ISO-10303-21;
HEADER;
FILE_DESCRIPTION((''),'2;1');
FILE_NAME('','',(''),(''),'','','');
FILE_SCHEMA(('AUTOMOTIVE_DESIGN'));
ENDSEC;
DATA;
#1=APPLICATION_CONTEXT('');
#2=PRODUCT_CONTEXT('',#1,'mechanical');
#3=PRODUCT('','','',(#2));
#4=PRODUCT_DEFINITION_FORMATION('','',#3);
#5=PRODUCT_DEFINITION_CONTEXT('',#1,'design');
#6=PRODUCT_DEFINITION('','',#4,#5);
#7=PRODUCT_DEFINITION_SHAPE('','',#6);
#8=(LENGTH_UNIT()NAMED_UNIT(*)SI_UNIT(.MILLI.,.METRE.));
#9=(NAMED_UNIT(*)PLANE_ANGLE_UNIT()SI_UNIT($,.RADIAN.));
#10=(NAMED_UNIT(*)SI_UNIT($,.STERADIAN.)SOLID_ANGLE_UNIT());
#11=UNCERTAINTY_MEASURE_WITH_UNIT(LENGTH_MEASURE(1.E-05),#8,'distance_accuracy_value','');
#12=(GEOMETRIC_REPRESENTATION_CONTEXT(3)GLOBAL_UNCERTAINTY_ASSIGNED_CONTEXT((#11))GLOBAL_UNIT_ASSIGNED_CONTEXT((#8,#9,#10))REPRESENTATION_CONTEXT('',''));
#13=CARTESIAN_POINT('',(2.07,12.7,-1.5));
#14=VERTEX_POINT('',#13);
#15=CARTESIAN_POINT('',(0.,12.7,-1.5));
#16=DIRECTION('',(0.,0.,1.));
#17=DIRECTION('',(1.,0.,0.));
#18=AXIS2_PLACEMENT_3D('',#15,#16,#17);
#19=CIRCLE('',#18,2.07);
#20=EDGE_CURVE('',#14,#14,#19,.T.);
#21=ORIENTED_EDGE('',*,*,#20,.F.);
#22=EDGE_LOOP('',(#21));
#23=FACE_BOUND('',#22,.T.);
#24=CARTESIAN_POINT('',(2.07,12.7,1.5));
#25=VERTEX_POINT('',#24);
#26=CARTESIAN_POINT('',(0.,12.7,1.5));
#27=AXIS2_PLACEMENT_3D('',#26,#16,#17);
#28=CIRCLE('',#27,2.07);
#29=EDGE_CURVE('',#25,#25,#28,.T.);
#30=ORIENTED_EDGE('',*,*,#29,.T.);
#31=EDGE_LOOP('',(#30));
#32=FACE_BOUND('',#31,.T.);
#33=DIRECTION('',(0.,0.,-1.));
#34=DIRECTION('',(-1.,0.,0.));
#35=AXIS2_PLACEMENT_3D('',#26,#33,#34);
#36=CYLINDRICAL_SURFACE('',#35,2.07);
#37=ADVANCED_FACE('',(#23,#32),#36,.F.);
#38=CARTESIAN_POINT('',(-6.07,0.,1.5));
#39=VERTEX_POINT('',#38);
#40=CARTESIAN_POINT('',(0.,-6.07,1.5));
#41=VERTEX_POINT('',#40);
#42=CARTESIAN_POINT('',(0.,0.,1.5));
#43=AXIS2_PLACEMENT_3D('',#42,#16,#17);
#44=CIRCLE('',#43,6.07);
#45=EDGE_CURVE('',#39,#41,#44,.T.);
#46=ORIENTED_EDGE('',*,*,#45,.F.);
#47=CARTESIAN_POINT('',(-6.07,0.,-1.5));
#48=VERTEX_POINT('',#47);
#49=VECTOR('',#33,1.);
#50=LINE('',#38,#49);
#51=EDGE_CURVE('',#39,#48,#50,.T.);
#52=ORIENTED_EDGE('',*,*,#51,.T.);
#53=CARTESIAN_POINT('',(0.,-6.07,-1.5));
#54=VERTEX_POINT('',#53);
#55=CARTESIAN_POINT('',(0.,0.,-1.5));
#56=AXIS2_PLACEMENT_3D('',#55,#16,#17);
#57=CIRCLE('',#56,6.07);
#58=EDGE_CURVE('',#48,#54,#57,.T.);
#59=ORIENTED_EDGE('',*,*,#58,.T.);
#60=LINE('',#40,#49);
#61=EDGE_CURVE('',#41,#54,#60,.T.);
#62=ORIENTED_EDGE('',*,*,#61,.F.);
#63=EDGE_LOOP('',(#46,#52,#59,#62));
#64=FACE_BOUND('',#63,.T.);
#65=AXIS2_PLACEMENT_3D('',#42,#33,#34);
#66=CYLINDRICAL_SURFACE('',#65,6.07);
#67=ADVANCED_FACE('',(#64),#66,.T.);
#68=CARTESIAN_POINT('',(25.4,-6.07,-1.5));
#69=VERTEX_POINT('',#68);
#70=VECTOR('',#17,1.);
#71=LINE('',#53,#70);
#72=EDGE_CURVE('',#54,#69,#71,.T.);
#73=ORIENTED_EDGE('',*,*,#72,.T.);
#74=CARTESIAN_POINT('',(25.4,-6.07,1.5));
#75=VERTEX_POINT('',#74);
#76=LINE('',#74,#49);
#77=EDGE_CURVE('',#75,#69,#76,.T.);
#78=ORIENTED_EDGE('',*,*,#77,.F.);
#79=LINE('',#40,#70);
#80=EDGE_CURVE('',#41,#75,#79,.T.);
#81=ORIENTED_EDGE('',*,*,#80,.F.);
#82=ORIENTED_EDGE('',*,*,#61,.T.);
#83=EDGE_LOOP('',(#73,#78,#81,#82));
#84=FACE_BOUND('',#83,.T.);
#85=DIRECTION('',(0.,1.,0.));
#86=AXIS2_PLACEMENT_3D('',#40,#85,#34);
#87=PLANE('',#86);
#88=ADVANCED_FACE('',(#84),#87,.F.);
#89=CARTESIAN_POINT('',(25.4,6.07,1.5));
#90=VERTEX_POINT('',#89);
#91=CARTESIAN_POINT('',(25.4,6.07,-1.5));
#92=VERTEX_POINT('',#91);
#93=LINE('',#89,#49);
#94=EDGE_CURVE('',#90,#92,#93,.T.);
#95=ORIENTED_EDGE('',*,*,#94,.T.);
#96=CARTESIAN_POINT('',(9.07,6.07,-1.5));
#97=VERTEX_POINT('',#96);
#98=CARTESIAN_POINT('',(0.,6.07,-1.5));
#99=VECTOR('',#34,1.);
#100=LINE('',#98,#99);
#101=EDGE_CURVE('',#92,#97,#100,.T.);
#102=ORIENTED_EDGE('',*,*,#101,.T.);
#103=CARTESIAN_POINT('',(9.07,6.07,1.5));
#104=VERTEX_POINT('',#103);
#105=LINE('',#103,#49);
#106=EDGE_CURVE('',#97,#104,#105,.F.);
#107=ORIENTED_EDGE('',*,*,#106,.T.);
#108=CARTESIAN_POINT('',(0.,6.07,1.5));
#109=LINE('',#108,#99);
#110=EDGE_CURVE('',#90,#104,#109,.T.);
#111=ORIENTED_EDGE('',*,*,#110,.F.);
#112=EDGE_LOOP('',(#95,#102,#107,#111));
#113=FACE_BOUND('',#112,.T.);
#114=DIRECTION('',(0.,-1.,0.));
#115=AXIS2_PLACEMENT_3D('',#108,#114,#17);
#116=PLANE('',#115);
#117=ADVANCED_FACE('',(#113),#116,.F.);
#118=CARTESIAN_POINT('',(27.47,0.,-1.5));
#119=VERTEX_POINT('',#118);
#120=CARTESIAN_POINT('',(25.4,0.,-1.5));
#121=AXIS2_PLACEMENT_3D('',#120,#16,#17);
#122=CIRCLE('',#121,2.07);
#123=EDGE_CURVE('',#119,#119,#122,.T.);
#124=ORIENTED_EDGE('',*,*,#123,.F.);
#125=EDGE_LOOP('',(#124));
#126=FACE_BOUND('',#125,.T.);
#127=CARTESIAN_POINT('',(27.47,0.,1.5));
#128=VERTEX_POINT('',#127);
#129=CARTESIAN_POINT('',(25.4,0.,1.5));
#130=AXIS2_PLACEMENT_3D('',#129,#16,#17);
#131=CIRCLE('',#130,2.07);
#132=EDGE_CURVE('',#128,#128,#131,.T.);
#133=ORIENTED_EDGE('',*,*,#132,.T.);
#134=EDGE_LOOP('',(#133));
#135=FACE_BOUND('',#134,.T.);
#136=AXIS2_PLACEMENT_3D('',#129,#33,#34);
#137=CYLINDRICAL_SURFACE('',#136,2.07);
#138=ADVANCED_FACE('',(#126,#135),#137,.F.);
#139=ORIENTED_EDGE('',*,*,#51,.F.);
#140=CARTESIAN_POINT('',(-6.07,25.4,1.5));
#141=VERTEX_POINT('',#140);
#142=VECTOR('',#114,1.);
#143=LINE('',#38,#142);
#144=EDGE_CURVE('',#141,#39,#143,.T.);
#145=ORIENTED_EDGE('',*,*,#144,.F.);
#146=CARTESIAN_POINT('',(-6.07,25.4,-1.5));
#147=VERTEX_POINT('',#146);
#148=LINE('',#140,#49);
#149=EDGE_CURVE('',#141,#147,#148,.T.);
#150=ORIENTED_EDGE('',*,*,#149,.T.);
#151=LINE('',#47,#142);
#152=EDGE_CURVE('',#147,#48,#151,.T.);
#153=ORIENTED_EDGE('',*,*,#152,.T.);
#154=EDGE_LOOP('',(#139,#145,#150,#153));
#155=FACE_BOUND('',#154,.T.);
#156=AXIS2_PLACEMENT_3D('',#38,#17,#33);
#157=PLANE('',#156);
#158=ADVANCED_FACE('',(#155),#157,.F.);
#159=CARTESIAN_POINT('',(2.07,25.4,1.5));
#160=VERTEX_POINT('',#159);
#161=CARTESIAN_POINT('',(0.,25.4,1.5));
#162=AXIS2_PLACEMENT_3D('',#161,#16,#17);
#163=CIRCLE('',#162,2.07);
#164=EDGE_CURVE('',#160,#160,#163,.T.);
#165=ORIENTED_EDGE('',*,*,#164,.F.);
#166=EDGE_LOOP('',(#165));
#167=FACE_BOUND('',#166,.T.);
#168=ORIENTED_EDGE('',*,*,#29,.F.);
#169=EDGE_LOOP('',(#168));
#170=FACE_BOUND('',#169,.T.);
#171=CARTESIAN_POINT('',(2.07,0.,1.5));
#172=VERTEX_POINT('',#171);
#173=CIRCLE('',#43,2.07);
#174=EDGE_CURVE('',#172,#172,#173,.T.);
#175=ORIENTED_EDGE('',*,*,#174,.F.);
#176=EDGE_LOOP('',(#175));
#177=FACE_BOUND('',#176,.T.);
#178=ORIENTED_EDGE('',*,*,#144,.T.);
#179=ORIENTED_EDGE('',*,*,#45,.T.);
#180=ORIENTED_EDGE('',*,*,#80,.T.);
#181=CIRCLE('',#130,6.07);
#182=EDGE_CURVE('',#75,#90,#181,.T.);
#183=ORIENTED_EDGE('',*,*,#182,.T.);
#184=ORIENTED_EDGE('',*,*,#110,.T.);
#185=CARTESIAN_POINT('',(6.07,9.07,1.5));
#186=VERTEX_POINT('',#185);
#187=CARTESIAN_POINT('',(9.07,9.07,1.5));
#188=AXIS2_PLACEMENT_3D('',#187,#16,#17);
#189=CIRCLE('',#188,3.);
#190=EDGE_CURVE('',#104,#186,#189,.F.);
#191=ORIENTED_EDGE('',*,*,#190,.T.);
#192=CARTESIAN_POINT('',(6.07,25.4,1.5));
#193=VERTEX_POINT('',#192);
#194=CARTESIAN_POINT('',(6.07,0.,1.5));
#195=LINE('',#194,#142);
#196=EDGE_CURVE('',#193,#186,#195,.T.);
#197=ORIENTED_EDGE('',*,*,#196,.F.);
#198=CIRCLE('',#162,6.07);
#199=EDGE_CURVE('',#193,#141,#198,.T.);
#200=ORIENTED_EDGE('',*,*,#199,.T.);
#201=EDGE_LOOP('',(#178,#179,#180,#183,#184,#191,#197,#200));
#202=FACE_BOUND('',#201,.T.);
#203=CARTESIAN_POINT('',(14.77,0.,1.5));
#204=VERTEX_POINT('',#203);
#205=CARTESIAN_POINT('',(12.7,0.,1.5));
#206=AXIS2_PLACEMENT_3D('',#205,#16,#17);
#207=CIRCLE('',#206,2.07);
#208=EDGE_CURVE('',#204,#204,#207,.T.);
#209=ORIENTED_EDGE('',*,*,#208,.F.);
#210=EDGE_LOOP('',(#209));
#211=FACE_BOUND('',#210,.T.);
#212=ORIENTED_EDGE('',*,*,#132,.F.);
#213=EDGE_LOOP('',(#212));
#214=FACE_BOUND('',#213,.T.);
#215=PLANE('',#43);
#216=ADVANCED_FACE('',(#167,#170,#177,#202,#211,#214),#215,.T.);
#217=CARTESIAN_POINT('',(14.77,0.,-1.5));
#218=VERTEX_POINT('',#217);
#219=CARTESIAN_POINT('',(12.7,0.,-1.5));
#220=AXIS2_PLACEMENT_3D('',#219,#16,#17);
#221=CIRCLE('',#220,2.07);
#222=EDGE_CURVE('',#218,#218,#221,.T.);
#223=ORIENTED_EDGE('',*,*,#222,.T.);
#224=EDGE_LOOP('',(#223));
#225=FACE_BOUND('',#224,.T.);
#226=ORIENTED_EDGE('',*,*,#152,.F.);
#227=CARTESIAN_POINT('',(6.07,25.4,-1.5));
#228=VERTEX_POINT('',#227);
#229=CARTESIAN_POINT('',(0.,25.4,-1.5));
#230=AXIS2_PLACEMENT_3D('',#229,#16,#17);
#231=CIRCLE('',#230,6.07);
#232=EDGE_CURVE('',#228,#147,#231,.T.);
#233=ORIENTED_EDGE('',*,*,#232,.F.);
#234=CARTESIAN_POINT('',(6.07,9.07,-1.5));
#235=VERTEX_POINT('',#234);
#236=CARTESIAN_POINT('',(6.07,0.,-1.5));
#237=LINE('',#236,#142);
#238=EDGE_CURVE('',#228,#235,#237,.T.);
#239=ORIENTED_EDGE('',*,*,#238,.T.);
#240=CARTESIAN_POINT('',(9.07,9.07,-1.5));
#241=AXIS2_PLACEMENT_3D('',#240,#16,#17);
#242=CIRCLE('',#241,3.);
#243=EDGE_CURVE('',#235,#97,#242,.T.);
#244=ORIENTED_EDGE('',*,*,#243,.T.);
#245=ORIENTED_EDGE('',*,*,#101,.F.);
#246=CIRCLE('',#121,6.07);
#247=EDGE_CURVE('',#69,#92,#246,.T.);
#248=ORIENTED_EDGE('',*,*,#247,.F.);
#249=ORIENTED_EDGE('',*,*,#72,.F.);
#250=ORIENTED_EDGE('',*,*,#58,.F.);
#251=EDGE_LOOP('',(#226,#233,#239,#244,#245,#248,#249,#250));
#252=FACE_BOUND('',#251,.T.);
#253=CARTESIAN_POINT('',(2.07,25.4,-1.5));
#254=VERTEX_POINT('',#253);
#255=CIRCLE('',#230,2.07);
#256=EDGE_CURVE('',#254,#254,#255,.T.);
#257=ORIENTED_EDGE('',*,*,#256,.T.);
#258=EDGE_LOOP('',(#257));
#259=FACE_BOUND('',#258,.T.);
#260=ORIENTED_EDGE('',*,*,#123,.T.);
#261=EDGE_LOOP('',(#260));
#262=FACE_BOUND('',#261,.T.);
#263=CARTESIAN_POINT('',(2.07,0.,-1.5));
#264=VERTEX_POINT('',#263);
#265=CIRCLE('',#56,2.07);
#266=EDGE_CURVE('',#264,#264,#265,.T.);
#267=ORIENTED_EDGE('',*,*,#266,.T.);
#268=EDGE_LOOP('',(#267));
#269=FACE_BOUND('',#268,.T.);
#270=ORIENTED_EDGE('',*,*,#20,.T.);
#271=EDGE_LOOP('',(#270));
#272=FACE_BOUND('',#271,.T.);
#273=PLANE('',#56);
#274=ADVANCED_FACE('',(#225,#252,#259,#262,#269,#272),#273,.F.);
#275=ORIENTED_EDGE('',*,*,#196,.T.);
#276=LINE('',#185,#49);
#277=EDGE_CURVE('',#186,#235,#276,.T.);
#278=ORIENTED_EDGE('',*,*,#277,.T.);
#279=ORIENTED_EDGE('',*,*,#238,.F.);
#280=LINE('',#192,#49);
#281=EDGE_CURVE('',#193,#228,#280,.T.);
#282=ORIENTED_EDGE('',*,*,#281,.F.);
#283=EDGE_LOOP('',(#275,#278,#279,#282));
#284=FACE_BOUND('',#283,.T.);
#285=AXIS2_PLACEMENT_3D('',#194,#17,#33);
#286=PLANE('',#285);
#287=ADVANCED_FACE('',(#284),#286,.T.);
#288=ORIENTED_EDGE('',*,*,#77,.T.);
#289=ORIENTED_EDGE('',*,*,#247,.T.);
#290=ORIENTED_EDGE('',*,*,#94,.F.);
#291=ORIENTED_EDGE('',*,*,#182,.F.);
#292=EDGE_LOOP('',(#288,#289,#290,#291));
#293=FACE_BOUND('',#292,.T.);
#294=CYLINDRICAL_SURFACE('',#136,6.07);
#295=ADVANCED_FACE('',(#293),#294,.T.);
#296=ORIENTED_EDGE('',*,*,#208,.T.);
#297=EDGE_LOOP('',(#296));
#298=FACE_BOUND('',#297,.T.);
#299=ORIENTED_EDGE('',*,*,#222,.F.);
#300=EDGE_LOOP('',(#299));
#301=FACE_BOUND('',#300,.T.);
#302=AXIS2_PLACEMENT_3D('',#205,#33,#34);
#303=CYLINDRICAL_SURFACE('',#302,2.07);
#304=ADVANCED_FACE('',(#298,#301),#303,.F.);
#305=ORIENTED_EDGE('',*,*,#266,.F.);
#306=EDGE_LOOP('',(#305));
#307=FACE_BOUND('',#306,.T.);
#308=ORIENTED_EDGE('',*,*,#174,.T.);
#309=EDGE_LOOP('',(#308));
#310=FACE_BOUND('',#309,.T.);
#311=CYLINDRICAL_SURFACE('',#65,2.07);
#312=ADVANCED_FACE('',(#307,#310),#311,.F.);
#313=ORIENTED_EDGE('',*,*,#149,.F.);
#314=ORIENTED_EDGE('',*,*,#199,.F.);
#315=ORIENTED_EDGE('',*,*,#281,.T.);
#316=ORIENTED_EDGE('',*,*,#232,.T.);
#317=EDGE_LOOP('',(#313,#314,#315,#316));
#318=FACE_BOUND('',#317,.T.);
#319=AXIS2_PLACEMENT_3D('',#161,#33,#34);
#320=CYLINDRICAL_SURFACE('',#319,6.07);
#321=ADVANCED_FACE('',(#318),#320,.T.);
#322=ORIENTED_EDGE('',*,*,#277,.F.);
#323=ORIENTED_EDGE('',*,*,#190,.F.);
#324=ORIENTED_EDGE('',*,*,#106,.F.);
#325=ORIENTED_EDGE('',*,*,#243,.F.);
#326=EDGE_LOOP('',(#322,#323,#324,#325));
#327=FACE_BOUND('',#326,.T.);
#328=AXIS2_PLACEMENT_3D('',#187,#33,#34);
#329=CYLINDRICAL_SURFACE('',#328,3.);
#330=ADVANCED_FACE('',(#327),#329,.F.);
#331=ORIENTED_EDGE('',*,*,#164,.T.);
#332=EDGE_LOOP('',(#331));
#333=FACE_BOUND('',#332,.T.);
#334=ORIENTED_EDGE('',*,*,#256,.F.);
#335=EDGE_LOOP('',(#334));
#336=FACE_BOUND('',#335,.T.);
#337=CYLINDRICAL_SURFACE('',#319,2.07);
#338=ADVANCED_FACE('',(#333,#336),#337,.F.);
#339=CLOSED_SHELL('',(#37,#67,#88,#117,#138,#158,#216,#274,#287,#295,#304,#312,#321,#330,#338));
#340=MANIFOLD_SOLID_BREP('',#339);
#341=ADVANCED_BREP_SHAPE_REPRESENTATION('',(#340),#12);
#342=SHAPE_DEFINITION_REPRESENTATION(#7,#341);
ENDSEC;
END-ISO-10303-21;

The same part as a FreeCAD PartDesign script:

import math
import FreeCAD as App
import Part
import Sketcher
from FreeCAD import Vector


def edges_at(feature, points):
    """Names of the edges that pass closest to the given points."""
    edges = feature.Shape.Edges
    near = lambda p: min(range(len(edges)), key=lambda i: edges[i].distToShape(Part.Vertex(*p))[0])
    return sorted({f"Edge{near(p) + 1}" for p in points})

doc = App.newDocument("Part")
body = doc.addObject("PartDesign::Body", "Body")

sketch1 = doc.addObject("Sketcher::SketchObject", "Sketch")
body.addObject(sketch1)
sketch1.AttachmentSupport = (doc.XY_Plane, [""])
sketch1.MapMode = "FlatFace"
sketch1.addGeometry(Part.LineSegment(Vector(6.1, 6.1, 0), Vector(6.1, 25.4, 0)), False)
sketch1.addGeometry(Part.ArcOfCircle(Part.Circle(Vector(0, 25.4, 0), Vector(0, 0, 1), 6.1), math.radians(0), math.radians(180)), False)
sketch1.addGeometry(Part.LineSegment(Vector(-6.1, 25.4, 0), Vector(-6.1, 0, 0)), False)
sketch1.addGeometry(Part.ArcOfCircle(Part.Circle(Vector(0, 0, 0), Vector(0, 0, 1), 6.1), math.radians(180), math.radians(270)), False)
sketch1.addGeometry(Part.LineSegment(Vector(0, -6.1, 0), Vector(25.4, -6.1, 0)), False)
sketch1.addGeometry(Part.ArcOfCircle(Part.Circle(Vector(25.4, 0, 0), Vector(0, 0, 1), 6.1), math.radians(-90), math.radians(90)), False)
sketch1.addGeometry(Part.LineSegment(Vector(25.4, 6.1, 0), Vector(6.1, 6.1, 0)), False)
sketch1.addGeometry(Part.Circle(Vector(0, 12.7, 0), Vector(0, 0, 1), 2.1), False)
sketch1.addGeometry(Part.Circle(Vector(0, 25.4, 0), Vector(0, 0, 1), 2.1), False)
sketch1.addGeometry(Part.Circle(Vector(12.7, 0, 0), Vector(0, 0, 1), 2.1), False)
sketch1.addGeometry(Part.Circle(Vector(0, 0, 0), Vector(0, 0, 1), 2.1), False)
sketch1.addGeometry(Part.Circle(Vector(25.4, 0, 0), Vector(0, 0, 1), 2.1), False)
sketch1.addConstraint(Sketcher.Constraint("Tangent", 0, 2, 1, 1))
sketch1.addConstraint(Sketcher.Constraint("Tangent", 1, 2, 2, 1))
sketch1.addConstraint(Sketcher.Constraint("Tangent", 2, 2, 3, 1))
sketch1.addConstraint(Sketcher.Constraint("Tangent", 3, 2, 4, 1))
sketch1.addConstraint(Sketcher.Constraint("Tangent", 4, 2, 5, 1))
sketch1.addConstraint(Sketcher.Constraint("Tangent", 5, 2, 6, 1))
sketch1.addConstraint(Sketcher.Constraint("Coincident", 6, 2, 0, 1))
sketch1.addConstraint(Sketcher.Constraint("Vertical", 0))
sketch1.addConstraint(Sketcher.Constraint("Vertical", 2))
sketch1.addConstraint(Sketcher.Constraint("Horizontal", 4))
sketch1.addConstraint(Sketcher.Constraint("Horizontal", 6))
sketch1.addConstraint(Sketcher.Constraint("Coincident", 3, 3, -1, 1))
sketch1.addConstraint(Sketcher.Constraint("Coincident", 10, 3, -1, 1))
sketch1.addConstraint(Sketcher.Constraint("Coincident", 8, 3, 1, 3))
sketch1.addConstraint(Sketcher.Constraint("Coincident", 11, 3, 5, 3))
sketch1.addConstraint(Sketcher.Constraint("Equal", 1, 3))
sketch1.addConstraint(Sketcher.Constraint("Equal", 3, 5))
sketch1.addConstraint(Sketcher.Constraint("Equal", 7, 8))
sketch1.addConstraint(Sketcher.Constraint("Equal", 8, 9))
sketch1.addConstraint(Sketcher.Constraint("Equal", 9, 10))
sketch1.addConstraint(Sketcher.Constraint("Equal", 10, 11))
sketch1.addConstraint(Sketcher.Constraint("PointOnObject", 7, 3, -2))
sketch1.addConstraint(Sketcher.Constraint("PointOnObject", 9, 3, -1))
sketch1.addConstraint(Sketcher.Constraint("Equal", 6, 0))
sketch1.addConstraint(Sketcher.Constraint("Diameter", 7, 4.14))
sketch1.addConstraint(Sketcher.Constraint("Radius", 1, 6.07))
sketch1.addConstraint(Sketcher.Constraint("DistanceX", 4, 1, 4, 2, 25.4))
sketch1.addConstraint(Sketcher.Constraint("DistanceY", -1, 1, 7, 3, 12.7))
sketch1.addConstraint(Sketcher.Constraint("DistanceX", -1, 1, 9, 3, 12.7))
pad1 = doc.addObject("PartDesign::Pad", "Pad")
body.addObject(pad1)
pad1.Profile = sketch1
pad1.Length = 3
pad1.Midplane = True
doc.recompute()

fillet = doc.addObject("PartDesign::Fillet", "Fillet")
body.addObject(fillet)
fillet.Base = (pad1, edges_at(pad1, [(6.07, 6.07, 0)]))
fillet.Radius = 3

doc.recompute()
